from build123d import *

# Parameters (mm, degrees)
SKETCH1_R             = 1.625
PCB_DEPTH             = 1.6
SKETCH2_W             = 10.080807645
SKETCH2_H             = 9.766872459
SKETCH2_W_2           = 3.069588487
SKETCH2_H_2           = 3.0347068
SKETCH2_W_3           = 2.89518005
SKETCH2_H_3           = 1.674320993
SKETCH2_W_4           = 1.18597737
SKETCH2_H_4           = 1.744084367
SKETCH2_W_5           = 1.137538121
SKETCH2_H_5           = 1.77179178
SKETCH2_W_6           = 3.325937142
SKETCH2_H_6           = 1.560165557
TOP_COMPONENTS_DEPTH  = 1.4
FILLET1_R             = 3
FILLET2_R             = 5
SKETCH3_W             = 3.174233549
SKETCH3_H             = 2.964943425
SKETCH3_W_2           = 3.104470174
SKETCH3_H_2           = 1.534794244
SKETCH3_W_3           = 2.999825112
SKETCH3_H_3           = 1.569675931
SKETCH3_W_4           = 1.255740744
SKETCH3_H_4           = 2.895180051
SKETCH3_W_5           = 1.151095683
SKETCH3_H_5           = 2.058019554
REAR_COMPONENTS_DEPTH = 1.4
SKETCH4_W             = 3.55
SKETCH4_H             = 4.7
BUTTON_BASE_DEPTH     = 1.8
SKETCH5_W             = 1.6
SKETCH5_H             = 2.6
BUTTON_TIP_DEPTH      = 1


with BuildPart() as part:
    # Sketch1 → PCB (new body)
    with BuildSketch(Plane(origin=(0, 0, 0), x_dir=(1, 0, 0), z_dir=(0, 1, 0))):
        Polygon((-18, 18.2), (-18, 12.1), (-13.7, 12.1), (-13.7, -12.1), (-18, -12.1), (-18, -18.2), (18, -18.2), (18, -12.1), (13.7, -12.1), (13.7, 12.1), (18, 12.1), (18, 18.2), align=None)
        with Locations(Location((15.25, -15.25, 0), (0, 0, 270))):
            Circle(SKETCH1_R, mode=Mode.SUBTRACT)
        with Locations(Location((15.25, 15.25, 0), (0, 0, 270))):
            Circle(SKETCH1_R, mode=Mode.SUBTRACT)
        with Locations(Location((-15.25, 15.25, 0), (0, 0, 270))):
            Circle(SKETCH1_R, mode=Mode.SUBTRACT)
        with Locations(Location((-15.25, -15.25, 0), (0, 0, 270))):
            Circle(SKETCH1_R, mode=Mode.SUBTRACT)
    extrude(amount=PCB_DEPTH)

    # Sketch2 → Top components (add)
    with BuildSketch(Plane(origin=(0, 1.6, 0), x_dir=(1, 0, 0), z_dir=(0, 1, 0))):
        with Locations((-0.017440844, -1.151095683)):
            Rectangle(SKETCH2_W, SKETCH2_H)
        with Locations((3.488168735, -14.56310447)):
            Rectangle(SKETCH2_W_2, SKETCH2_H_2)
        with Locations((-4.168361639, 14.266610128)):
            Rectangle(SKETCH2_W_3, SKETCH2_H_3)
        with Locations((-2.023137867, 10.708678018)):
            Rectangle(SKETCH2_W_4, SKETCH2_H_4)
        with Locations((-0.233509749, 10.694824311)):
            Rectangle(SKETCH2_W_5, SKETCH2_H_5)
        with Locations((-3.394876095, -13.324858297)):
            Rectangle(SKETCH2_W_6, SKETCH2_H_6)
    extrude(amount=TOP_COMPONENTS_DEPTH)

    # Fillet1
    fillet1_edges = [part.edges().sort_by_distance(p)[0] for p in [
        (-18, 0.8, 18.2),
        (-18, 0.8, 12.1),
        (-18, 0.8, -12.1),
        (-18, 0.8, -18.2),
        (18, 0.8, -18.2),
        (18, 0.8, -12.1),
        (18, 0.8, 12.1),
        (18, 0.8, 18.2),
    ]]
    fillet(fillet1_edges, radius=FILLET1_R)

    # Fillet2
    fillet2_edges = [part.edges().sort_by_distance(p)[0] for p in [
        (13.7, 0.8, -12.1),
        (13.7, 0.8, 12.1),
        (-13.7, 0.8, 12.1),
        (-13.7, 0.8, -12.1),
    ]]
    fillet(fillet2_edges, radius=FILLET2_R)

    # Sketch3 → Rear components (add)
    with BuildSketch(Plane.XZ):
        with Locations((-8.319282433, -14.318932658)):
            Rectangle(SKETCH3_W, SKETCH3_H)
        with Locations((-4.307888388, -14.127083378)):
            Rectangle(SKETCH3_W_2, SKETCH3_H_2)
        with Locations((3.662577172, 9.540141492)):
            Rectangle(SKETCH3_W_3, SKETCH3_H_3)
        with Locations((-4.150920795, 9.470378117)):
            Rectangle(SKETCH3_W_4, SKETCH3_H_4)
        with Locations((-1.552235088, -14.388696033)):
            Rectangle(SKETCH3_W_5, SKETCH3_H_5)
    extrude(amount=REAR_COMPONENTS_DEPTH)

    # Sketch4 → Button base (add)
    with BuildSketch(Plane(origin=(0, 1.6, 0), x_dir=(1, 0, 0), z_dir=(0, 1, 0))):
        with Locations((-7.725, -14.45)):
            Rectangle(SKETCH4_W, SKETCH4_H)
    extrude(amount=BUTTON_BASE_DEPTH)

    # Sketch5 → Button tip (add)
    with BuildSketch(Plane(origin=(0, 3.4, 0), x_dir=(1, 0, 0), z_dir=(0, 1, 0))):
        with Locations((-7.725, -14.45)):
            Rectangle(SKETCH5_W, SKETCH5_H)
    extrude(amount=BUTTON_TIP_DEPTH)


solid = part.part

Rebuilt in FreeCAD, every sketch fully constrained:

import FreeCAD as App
import Part
import Sketcher

V = App.Vector


def edges_at(feature, points):
    """Names of the edges that pass closest to the given points."""
    edges = feature.Shape.Edges
    near = lambda p: min(range(len(edges)), key=lambda i: edges[i].distToShape(Part.Vertex(*p))[0])
    return sorted({f"Edge{near(p) + 1}" for p in points})


def add_polygon(sketch, points):
    """Adds a closed chain of lines whose ends are joined by coincident constraints."""
    first, n = sketch.GeometryCount, len(points)
    for a, b in zip(points, points[1:] + points[:1]):
        sketch.addGeometry(Part.LineSegment(App.Vector(*a, 0), App.Vector(*b, 0)), False)
    for i in range(n):
        sketch.addConstraint(Sketcher.Constraint("Coincident", first + i, 2, first + (i + 1) % n, 1))

doc = App.newDocument("Part")
body = doc.addObject("PartDesign::Body", "Body")

# Sketch on XZ plane
sketch1 = doc.addObject("Sketcher::SketchObject", "Sketch")
body.addObject(sketch1)
sketch1.AttachmentSupport = (doc.XZ_Plane, [""])
sketch1.MapMode = "FlatFace"
add_polygon(sketch1, [(-18, -18.2), (-18, -12.1), (-13.7, -12.1), (-13.7, 12.1), (-18, 12.1), (-18, 18.2), (18, 18.2), (18, 12.1), (13.7, 12.1), (13.7, -12.1), (18, -12.1), (18, -18.2)])  # lines 0-11
sketch1.addGeometry(Part.Circle(V(-15.2, 15.2, 0), V(0, 0, 1), 1.6), False)  # 12
sketch1.addGeometry(Part.Circle(V(15.2, 15.2, 0), V(0, 0, 1), 1.6), False)  # 13
sketch1.addGeometry(Part.Circle(V(-15.2, -15.2, 0), V(0, 0, 1), 1.6), False)  # 14
sketch1.addGeometry(Part.Circle(V(15.2, -15.2, 0), V(0, 0, 1), 1.6), False)  # 15
sketch1.addConstraint([
    Sketcher.Constraint("Vertical", 0),
    Sketcher.Constraint("Horizontal", 1),
    Sketcher.Constraint("Vertical", 2),
    Sketcher.Constraint("Horizontal", 3),
    Sketcher.Constraint("Vertical", 4),
    Sketcher.Constraint("Horizontal", 5),
    Sketcher.Constraint("Vertical", 6),
    Sketcher.Constraint("Horizontal", 7),
    Sketcher.Constraint("Vertical", 8),
    Sketcher.Constraint("Horizontal", 9),
    Sketcher.Constraint("Vertical", 10),
    Sketcher.Constraint("Horizontal", 11),
    Sketcher.Constraint("Equal", 12, 13),
    Sketcher.Constraint("Equal", 13, 14),
    Sketcher.Constraint("Equal", 14, 15),
    Sketcher.Constraint("Symmetric", 13, 3, 14, 3, -1, 1),
    Sketcher.Constraint("Symmetric", 12, 3, 15, 3, -1, 1),
    Sketcher.Constraint("Symmetric", 0, 2, 6, 2, -1, 1),
    Sketcher.Constraint("Symmetric", 2, 2, 8, 2, -1, 1),
    Sketcher.Constraint("Symmetric", 4, 2, 10, 2, -1, 1),
    Sketcher.Constraint("Symmetric", 12, 3, 13, 3, -2),
    Sketcher.Constraint("Symmetric", 3, 2, 6, 2, -2),
    Sketcher.Constraint("Diameter", 12, 3.25),
    Sketcher.Constraint("DistanceX", 5, 1, 5, 2, 36.0),
    Sketcher.Constraint("DistanceX", 1, 1, 1, 2, 4.3),
    Sketcher.Constraint("DistanceY", 0, 1, 0, 2, 6.1),
    Sketcher.Constraint("DistanceY", 2, 1, 2, 2, 24.2),
    Sketcher.Constraint("DistanceX", 12, 3, 13, 3, 30.5),
    Sketcher.Constraint("DistanceY", 14, 3, 12, 3, 30.5),
])
pad1 = doc.addObject("PartDesign::Pad", "Pad")
body.addObject(pad1)
pad1.Profile = sketch1
pad1.Length = 1.6
pad1.Reversed = True

# Sketch on XZ plane
sketch2 = doc.addObject("Sketcher::SketchObject", "Sketch001")
body.addObject(sketch2)
sketch2.AttachmentSupport = (doc.XZ_Plane, [""])
sketch2.MapMode = "FlatFace"
sketch2.AttachmentOffset = App.Placement(V(0, 0, -1.6), App.Rotation())
add_polygon(sketch2, [(-5.1, -3.7), (-5.1, 6), (5, 6), (5, -3.7)])  # lines 0-3
add_polygon(sketch2, [(2, 13), (2, 16.1), (5, 16.1), (5, 13)])  # lines 4-7
add_polygon(sketch2, [(-5.6, -15.1), (-5.6, -13.4), (-2.7, -13.4), (-2.7, -15.1)])  # lines 8-11
add_polygon(sketch2, [(-2.6, -11.6), (-2.6, -9.8), (-1.4, -9.8), (-1.4, -11.6)])  # lines 12-15
add_polygon(sketch2, [(-0.8, -11.6), (-0.8, -9.8), (0.3, -9.8), (0.3, -11.6)])  # lines 16-19
add_polygon(sketch2, [(-5.1, 12.5), (-5.1, 14.1), (-1.7, 14.1), (-1.7, 12.5)])  # lines 20-23
sketch2.addConstraint([
    Sketcher.Constraint("Vertical", 0),
    Sketcher.Constraint("Horizontal", 1),
    Sketcher.Constraint("Vertical", 2),
    Sketcher.Constraint("Horizontal", 3),
    Sketcher.Constraint("Vertical", 4),
    Sketcher.Constraint("Horizontal", 5),
    Sketcher.Constraint("Vertical", 6),
    Sketcher.Constraint("Horizontal", 7),
    Sketcher.Constraint("Vertical", 8),
    Sketcher.Constraint("Horizontal", 9),
    Sketcher.Constraint("Vertical", 10),
    Sketcher.Constraint("Horizontal", 11),
    Sketcher.Constraint("Vertical", 12),
    Sketcher.Constraint("Horizontal", 13),
    Sketcher.Constraint("Vertical", 14),
    Sketcher.Constraint("Horizontal", 15),
    Sketcher.Constraint("Vertical", 16),
    Sketcher.Constraint("Horizontal", 17),
    Sketcher.Constraint("Vertical", 18),
    Sketcher.Constraint("Horizontal", 19),
    Sketcher.Constraint("Vertical", 20),
    Sketcher.Constraint("Horizontal", 21),
    Sketcher.Constraint("Vertical", 22),
    Sketcher.Constraint("Horizontal", 23),
    Sketcher.Constraint("Horizontal", 15, 2, 18, 2),
    Sketcher.Constraint("Vertical", 2, 2, 5, 2),
    Sketcher.Constraint("Vertical", 3, 2, 20, 2),
    Sketcher.Constraint("DistanceX", 5, 1, 5, 2, 3.069588),
    Sketcher.Constraint("DistanceX", 9, 1, 9, 2, 2.89518),
    Sketcher.Constraint("DistanceX", 17, 1, 17, 2, 1.137538),
    Sketcher.Constraint("DistanceY", 8, 1, 8, 2, 1.674321),
    Sketcher.Constraint("DistanceY", 16, 1, 16, 2, 1.771792),
    Sketcher.Constraint("DistanceY", 2, 2, 4, 2, 19.812798),
    Sketcher.Constraint("DistanceY", 8, 2, 7, 2, 26.475201),
    Sketcher.Constraint("DistanceX", 1, 1, 1, 2, 10.080808),
    Sketcher.Constraint("DistanceX", 13, 1, 13, 2, 1.185977),
    Sketcher.Constraint("DistanceX", 21, 1, 21, 2, 3.325937),
    Sketcher.Constraint("DistanceY", 0, 1, 0, 2, 9.766872),
    Sketcher.Constraint("DistanceY", 4, 1, 4, 2, 3.034707),
    Sketcher.Constraint("DistanceY", 12, 1, 12, 2, 1.744084),
    Sketcher.Constraint("DistanceY", 20, 1, 20, 2, 1.560166),
    Sketcher.Constraint("DistanceY", -1, 1, 0, 2, 6.034532),
    Sketcher.Constraint("DistanceX", 8, 2, -1, 1, 5.615952),
    Sketcher.Constraint("DistanceX", 13, 2, -1, 1, 1.430149),
    Sketcher.Constraint("DistanceY", 14, 2, -1, 1, 11.58072),
    Sketcher.Constraint("DistanceX", 16, 2, -1, 1, 0.802279),
    Sketcher.Constraint("DistanceY", -1, 1, 20, 2, 14.104941),
    Sketcher.Constraint("DistanceX", 3, 2, 12, 2, 2.441718),
])
pad2 = doc.addObject("PartDesign::Pad", "Pad001")
body.addObject(pad2)
pad2.Profile = sketch2
pad2.Length = 1.4
pad2.Reversed = True
doc.recompute()

fillet = doc.addObject("PartDesign::Fillet", "Fillet")
body.addObject(fillet)
fillet.Base = (pad2, edges_at(pad2, [
    (-18, 0.8, 18.2),
    (-18, 0.8, 12.1),
    (-18, 0.8, -12.1),
    (-18, 0.8, -18.2),
    (18, 0.8, -18.2),
    (18, 0.8, -12.1),
    (18, 0.8, 12.1),
    (18, 0.8, 18.2),
]))
fillet.Radius = 3
doc.recompute()

fillet2 = doc.addObject("PartDesign::Fillet", "Fillet001")
body.addObject(fillet2)
fillet2.Base = (fillet, edges_at(fillet, [
    (13.7, 0.8, -12.1),
    (13.7, 0.8, 12.1),
    (-13.7, 0.8, 12.1),
    (-13.7, 0.8, -12.1),
]))
fillet2.Radius = 5

# Sketch on XZ plane
sketch3 = doc.addObject("Sketcher::SketchObject", "Sketch002")
body.addObject(sketch3)
sketch3.AttachmentSupport = (doc.XZ_Plane, [""])
sketch3.MapMode = "FlatFace"
add_polygon(sketch3, [(-9.9, -12.8), (-9.9, -15.8), (-6.7, -15.8), (-6.7, -12.8)])  # lines 0-3
add_polygon(sketch3, [(-5.9, -13.4), (-5.9, -14.9), (-2.8, -14.9), (-2.8, -13.4)])  # lines 4-7
add_polygon(sketch3, [(2.2, 10.3), (2.2, 8.8), (5.2, 8.8), (5.2, 10.3)])  # lines 8-11
add_polygon(sketch3, [(-4.8, 10.9), (-4.8, 8), (-3.5, 8), (-3.5, 10.9)])  # lines 12-15
add_polygon(sketch3, [(-2.1, -13.4), (-2.1, -15.4), (-1, -15.4), (-1, -13.4)])  # lines 16-19
sketch3.addConstraint([
    Sketcher.Constraint("Vertical", 0),
    Sketcher.Constraint("Horizontal", 1),
    Sketcher.Constraint("Vertical", 2),
    Sketcher.Constraint("Horizontal", 3),
    Sketcher.Constraint("Vertical", 4),
    Sketcher.Constraint("Horizontal", 5),
    Sketcher.Constraint("Vertical", 6),
    Sketcher.Constraint("Horizontal", 7),
    Sketcher.Constraint("Vertical", 8),
    Sketcher.Constraint("Horizontal", 9),
    Sketcher.Constraint("Vertical", 10),
    Sketcher.Constraint("Horizontal", 11),
    Sketcher.Constraint("Vertical", 12),
    Sketcher.Constraint("Horizontal", 13),
    Sketcher.Constraint("Vertical", 14),
    Sketcher.Constraint("Horizontal", 15),
    Sketcher.Constraint("Vertical", 16),
    Sketcher.Constraint("Horizontal", 17),
    Sketcher.Constraint("Vertical", 18),
    Sketcher.Constraint("Horizontal", 19),
    Sketcher.Constraint("Horizontal", 7, 2, 18, 2),
    Sketcher.Constraint("DistanceX", 5, 1, 5, 2, 3.10447),
    Sketcher.Constraint("DistanceX", 13, 1, 13, 2, 1.255741),
    Sketcher.Constraint("DistanceY", 12, 2, 12, 1, 2.89518),
    Sketcher.Constraint("DistanceY", 16, 2, 16, 1, 2.05802),
    Sketcher.Constraint("DistanceX", 0, 2, -1, 1, 9.906399),
    Sketcher.Constraint("DistanceY", 1, 2, 16, 2, 0.383699),
    Sketcher.Constraint("DistanceX", 1, 1, 1, 2, 3.174234),
    Sketcher.Constraint("DistanceX", 9, 1, 9, 2, 2.999825),
    Sketcher.Constraint("DistanceX", 17, 1, 17, 2, 1.151096),
    Sketcher.Constraint("DistanceY", 0, 2, 0, 1, 2.964943),
    Sketcher.Constraint("DistanceY", 4, 2, 4, 1, 1.534794),
    Sketcher.Constraint("DistanceY", 8, 2, 8, 1, 1.569676),
    Sketcher.Constraint("DistanceY", 2, 2, -1, 1, 12.836461),
    Sketcher.Constraint("DistanceX", -1, 1, 9, 2, 5.16249),
    Sketcher.Constraint("DistanceY", -1, 1, 10, 2, 10.324979),
    Sketcher.Constraint("DistanceX", 12, 2, -1, 1, 4.778791),
    Sketcher.Constraint("DistanceY", -1, 1, 12, 2, 8.022788),
    Sketcher.Constraint("DistanceX", 7, 2, 8, 2, 8.022788),
    Sketcher.Constraint("DistanceX", 5, 2, 16, 2, 0.62787),
])
pad3 = doc.addObject("PartDesign::Pad", "Pad002")
body.addObject(pad3)
pad3.Profile = sketch3
pad3.Length = 1.4

# Sketch on XZ plane
sketch4 = doc.addObject("Sketcher::SketchObject", "Sketch003")
body.addObject(sketch4)
sketch4.AttachmentSupport = (doc.XZ_Plane, [""])
sketch4.MapMode = "FlatFace"
sketch4.AttachmentOffset = App.Placement(V(0, 0, -1.6), App.Rotation())
add_polygon(sketch4, [(-9.5, 12.1), (-9.5, 16.8), (-6, 16.8), (-6, 12.1)])  # lines 0-3
sketch4.addConstraint([
    Sketcher.Constraint("Vertical", 0),
    Sketcher.Constraint("Horizontal", 1),
    Sketcher.Constraint("Vertical", 2),
    Sketcher.Constraint("Horizontal", 3),
    Sketcher.Constraint("DistanceY", 0, 1, 0, 2, 4.7),
    Sketcher.Constraint("DistanceX", 1, 1, 1, 2, 3.55),
    Sketcher.Constraint("DistanceX", 0, 2, -1, 1, 9.5),
    Sketcher.Constraint("DistanceY", -1, 1, 0, 2, 16.8),
])
pad4 = doc.addObject("PartDesign::Pad", "Pad003")
body.addObject(pad4)
pad4.Profile = sketch4
pad4.Length = 1.8
pad4.Reversed = True

# Sketch on XZ plane
sketch5 = doc.addObject("Sketcher::SketchObject", "Sketch004")
body.addObject(sketch5)
sketch5.AttachmentSupport = (doc.XZ_Plane, [""])
sketch5.MapMode = "FlatFace"
sketch5.AttachmentOffset = App.Placement(V(0, 0, -3.4), App.Rotation())
add_polygon(sketch5, [(-8.5, 13.2), (-8.5, 15.8), (-6.9, 15.8), (-6.9, 13.2)])  # lines 0-3
sketch5.addConstraint([
    Sketcher.Constraint("Vertical", 0),
    Sketcher.Constraint("Horizontal", 1),
    Sketcher.Constraint("Vertical", 2),
    Sketcher.Constraint("Horizontal", 3),
    Sketcher.Constraint("DistanceX", 1, 1, 1, 2, 1.6),
    Sketcher.Constraint("DistanceY", 0, 1, 0, 2, 2.6),
    Sketcher.Constraint("DistanceY", -1, 1, 0, 2, 15.75),
    Sketcher.Constraint("DistanceX", 0, 2, -1, 1, 8.525),
])
pad5 = doc.addObject("PartDesign::Pad", "Pad004")
body.addObject(pad5)
pad5.Profile = sketch5
pad5.Length = 1
pad5.Reversed = True

doc.recompute()
